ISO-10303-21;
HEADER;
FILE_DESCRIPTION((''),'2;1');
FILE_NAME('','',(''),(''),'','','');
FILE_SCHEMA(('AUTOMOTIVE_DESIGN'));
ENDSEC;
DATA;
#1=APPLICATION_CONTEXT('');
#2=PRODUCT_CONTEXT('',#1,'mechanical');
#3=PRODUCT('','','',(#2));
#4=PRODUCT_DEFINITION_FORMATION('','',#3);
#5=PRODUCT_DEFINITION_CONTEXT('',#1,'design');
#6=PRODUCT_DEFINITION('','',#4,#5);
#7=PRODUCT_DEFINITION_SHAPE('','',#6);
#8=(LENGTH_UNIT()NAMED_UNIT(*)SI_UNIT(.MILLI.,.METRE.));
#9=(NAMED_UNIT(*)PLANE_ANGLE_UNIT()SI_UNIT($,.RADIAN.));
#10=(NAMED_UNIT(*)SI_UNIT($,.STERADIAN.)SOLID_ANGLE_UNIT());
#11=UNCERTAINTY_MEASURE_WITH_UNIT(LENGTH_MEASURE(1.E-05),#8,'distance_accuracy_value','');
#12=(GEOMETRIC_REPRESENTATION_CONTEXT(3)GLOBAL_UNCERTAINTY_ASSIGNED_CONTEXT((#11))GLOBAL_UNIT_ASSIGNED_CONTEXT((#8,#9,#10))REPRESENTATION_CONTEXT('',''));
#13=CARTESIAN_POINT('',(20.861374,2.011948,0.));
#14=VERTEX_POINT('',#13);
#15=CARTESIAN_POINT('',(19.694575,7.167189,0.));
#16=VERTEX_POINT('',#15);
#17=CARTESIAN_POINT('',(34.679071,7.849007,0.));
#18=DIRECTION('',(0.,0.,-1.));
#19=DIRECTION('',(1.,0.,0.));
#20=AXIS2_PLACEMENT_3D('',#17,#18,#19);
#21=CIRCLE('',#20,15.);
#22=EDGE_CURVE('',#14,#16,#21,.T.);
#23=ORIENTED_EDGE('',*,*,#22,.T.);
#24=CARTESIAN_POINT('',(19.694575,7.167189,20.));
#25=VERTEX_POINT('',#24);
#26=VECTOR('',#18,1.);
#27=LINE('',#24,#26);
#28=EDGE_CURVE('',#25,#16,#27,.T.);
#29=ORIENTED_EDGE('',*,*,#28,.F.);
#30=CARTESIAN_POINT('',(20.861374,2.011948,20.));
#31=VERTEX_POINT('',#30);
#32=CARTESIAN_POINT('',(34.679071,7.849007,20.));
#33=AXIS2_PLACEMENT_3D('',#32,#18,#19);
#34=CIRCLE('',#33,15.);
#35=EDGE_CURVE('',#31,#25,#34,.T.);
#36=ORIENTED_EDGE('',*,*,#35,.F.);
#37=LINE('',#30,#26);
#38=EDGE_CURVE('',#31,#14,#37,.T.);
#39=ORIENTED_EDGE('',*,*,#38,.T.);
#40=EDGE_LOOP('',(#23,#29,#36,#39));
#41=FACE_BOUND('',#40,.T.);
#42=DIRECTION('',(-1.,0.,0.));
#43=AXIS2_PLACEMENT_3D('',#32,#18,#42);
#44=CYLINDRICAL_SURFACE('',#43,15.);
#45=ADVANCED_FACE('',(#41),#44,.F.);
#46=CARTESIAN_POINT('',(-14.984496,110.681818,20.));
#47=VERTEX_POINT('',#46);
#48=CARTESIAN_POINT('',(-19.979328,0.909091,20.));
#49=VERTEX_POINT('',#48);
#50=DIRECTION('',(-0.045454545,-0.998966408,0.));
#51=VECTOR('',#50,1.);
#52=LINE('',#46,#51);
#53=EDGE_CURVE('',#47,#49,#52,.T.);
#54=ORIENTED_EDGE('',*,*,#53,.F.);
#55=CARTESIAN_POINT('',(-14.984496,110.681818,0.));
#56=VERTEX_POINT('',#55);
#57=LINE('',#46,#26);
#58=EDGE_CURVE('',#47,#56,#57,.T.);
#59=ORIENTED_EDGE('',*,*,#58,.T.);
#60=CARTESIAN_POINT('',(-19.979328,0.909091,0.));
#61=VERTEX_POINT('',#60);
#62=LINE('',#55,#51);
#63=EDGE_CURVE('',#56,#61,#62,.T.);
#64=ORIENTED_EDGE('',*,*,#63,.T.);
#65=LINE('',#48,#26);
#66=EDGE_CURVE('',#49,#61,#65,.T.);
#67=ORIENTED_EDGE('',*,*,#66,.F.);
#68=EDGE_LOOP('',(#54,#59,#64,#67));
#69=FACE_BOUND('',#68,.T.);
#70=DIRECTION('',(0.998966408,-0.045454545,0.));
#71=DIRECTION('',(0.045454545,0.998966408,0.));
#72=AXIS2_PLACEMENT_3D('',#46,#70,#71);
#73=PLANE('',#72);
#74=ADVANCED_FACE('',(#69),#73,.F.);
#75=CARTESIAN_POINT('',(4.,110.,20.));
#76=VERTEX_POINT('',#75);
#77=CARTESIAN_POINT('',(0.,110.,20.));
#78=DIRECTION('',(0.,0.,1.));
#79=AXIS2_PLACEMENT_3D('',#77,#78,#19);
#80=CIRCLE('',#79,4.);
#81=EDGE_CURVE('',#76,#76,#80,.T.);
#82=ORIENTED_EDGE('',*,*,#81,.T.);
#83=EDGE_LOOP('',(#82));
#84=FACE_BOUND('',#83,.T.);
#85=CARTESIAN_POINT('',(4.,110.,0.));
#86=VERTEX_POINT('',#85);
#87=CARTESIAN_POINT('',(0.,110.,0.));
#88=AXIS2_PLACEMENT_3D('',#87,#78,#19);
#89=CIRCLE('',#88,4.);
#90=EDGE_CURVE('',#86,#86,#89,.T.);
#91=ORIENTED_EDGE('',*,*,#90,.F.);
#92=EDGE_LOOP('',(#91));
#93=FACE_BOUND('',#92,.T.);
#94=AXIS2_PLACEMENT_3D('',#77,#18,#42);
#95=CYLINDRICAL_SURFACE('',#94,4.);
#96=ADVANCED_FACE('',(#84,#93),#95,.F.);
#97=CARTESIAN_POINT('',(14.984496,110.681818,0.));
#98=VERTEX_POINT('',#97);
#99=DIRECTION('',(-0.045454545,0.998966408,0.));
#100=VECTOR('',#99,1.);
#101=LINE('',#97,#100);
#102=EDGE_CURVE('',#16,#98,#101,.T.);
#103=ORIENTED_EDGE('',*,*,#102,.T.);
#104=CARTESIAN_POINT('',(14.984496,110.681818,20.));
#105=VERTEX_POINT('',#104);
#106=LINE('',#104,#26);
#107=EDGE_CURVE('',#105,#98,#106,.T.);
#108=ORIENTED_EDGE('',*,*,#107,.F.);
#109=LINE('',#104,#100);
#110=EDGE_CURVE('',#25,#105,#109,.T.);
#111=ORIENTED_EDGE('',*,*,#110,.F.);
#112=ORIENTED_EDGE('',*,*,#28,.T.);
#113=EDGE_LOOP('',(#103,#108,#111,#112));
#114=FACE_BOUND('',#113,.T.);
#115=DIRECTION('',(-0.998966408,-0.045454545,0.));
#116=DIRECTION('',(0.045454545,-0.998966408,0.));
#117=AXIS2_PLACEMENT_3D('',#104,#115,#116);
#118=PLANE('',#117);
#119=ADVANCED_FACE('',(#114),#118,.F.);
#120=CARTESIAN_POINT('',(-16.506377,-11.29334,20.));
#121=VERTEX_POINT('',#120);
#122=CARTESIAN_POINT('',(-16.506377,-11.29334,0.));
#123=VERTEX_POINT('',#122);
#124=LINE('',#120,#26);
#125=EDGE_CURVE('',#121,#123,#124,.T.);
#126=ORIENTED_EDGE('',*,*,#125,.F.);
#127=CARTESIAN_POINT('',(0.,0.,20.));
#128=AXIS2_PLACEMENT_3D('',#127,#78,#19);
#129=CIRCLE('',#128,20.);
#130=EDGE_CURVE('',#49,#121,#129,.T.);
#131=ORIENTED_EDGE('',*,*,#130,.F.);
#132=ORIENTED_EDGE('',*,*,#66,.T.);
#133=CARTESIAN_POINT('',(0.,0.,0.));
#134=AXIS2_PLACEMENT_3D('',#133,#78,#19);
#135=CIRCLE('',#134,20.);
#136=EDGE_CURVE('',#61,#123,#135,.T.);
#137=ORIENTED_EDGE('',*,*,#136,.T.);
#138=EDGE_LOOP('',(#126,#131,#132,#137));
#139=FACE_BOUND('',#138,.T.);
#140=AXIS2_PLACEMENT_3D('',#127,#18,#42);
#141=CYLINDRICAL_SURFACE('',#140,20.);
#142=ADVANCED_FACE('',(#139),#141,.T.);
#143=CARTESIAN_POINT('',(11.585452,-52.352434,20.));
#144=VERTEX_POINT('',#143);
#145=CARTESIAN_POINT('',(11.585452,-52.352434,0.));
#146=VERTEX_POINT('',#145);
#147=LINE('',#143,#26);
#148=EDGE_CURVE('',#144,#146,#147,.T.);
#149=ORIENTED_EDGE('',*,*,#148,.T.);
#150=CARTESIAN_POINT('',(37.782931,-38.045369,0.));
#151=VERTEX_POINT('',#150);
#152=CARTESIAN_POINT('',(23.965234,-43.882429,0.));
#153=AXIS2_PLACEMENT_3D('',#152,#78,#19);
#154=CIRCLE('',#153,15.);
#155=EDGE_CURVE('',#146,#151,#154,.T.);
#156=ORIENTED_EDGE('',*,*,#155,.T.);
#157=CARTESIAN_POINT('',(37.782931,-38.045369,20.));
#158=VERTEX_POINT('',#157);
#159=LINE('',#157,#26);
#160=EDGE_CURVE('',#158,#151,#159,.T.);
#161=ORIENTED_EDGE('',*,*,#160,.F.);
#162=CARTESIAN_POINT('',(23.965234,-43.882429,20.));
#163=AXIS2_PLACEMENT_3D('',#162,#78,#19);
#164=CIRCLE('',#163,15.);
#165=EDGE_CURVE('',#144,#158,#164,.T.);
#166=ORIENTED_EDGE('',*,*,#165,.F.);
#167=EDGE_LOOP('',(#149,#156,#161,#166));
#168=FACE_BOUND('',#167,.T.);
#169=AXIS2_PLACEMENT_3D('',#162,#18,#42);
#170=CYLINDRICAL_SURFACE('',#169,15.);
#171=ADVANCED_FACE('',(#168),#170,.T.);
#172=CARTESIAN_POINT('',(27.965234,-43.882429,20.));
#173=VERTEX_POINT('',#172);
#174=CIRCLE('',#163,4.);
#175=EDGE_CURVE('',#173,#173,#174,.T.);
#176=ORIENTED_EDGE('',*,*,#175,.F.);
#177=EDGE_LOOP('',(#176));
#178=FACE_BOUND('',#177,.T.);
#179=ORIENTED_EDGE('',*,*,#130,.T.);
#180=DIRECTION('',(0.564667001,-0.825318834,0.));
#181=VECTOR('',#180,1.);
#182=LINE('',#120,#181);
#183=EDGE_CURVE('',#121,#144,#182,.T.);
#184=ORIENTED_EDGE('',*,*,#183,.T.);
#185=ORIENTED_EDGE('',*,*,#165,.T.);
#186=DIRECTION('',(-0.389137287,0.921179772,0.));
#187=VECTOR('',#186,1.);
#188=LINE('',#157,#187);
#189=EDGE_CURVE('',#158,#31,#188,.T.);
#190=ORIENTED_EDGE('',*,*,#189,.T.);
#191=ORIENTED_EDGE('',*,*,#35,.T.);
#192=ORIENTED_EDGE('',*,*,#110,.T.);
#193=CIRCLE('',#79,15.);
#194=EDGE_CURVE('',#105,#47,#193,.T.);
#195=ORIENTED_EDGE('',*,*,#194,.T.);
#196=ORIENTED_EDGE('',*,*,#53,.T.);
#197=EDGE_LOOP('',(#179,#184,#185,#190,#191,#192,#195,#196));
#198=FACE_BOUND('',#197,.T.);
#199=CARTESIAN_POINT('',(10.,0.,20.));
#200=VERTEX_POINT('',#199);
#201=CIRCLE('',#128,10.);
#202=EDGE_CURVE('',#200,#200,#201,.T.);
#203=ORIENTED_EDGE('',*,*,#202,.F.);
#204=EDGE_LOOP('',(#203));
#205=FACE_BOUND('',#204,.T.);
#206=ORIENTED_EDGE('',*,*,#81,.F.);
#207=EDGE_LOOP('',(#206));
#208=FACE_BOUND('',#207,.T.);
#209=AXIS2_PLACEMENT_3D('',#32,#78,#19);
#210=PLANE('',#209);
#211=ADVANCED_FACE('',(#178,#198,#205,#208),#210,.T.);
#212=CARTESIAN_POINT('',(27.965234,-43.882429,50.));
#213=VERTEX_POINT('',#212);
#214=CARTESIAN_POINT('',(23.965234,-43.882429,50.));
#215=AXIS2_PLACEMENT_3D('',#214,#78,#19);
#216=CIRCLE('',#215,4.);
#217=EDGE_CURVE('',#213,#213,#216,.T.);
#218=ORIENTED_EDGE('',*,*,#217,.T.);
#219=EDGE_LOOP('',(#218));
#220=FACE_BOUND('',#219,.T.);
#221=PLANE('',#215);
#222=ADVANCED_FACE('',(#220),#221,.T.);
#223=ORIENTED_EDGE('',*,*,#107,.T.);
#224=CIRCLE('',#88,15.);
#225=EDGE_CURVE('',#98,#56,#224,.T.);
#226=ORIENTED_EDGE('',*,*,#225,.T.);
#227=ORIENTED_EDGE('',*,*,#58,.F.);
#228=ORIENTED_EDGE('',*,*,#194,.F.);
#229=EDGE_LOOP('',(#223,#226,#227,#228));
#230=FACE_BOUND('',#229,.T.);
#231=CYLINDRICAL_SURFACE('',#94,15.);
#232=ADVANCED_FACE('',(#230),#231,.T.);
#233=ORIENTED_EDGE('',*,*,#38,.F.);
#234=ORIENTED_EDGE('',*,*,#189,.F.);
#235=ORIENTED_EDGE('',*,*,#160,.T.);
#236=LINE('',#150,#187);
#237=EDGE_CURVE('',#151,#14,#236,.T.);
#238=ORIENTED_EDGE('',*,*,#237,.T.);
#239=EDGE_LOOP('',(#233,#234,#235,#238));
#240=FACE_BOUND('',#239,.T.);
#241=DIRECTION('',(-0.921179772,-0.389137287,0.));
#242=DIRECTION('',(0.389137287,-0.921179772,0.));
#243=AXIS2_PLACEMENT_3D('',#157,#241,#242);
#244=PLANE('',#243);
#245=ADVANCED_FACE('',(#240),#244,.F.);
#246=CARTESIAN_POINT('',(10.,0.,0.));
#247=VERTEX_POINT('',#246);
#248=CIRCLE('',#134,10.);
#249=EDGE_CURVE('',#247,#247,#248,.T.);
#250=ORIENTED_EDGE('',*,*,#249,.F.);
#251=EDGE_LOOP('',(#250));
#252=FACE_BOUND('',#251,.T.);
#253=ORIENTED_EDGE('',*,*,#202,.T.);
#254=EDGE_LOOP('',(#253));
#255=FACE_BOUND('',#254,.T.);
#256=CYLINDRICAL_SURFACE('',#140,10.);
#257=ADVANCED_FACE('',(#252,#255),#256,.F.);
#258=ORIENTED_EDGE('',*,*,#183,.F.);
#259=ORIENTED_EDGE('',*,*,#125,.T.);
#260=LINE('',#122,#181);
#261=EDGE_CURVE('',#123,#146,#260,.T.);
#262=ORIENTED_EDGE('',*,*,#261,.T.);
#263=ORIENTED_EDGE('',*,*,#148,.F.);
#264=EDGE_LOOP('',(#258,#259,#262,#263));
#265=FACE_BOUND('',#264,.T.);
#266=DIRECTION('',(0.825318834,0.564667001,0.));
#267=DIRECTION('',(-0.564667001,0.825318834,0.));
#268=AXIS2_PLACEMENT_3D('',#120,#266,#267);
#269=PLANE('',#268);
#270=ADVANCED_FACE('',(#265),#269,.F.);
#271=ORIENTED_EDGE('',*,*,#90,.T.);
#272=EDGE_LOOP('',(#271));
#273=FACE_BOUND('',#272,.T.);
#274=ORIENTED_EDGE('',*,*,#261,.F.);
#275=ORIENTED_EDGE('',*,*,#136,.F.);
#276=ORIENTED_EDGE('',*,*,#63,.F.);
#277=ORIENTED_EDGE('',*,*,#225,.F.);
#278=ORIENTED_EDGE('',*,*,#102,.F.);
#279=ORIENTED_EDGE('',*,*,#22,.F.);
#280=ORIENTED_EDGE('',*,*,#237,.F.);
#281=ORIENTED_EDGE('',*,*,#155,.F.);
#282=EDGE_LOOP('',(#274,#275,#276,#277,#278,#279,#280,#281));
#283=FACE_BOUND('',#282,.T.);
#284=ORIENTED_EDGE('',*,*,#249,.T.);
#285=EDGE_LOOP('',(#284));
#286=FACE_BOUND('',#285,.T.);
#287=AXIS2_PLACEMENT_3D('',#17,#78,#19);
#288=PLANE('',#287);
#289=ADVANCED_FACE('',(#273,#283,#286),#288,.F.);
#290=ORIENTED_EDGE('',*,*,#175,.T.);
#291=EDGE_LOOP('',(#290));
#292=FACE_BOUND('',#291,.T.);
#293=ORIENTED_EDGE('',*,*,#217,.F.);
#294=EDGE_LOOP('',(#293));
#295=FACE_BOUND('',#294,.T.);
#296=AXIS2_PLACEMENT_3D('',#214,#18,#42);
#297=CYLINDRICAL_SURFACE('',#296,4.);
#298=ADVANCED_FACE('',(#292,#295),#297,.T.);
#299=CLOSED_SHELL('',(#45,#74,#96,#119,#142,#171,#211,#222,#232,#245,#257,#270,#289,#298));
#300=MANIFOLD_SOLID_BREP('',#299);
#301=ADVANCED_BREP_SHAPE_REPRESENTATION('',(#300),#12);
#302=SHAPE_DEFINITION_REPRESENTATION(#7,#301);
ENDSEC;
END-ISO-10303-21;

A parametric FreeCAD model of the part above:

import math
import FreeCAD as App
import Part
import Sketcher

V = App.Vector
Q = App.Units.Quantity

doc = App.newDocument("Part")
body = doc.addObject("PartDesign::Body", "Body")

sketch1 = body.newObject("Sketcher::SketchObject", "Sketch")
sketch1.AttachmentSupport = (doc.getObject("XY_Plane"), [""])
sketch1.MapMode = "FlatFace"
sketch1.addGeometry(Part.LineSegment(V(-14.984496, 110.681818, 0), V(-19.979328, 0.909091, 0)), False)
sketch1.addGeometry(Part.ArcOfCircle(Part.Circle(V(0, 0, 0), V(0, 0, 1), 20), math.radians(177.394749), math.radians(214.37917)), False)
sketch1.addGeometry(Part.LineSegment(V(-16.506377, -11.29334, 0), V(11.585452, -52.352434, 0)), False)
sketch1.addGeometry(Part.ArcOfCircle(Part.Circle(V(23.965234, -43.882429, 0), V(0, 0, 1), 15), math.radians(-145.62083), math.radians(22.90083)), False)
sketch1.addGeometry(Part.LineSegment(V(37.782931, -38.045369, 0), V(20.861374, 2.011948, 0)), False)
sketch1.addGeometry(Part.ArcOfCircle(Part.Circle(V(34.679071, 7.849007, 0), V(0, 0, 1), 15), math.radians(-177.394749), math.radians(-157.09917)), False)
sketch1.addGeometry(Part.LineSegment(V(19.694575, 7.167189, 0), V(14.984496, 110.681818, 0)), False)
sketch1.addGeometry(Part.ArcOfCircle(Part.Circle(V(0, 110, 0), V(0, 0, 1), 15), math.radians(2.605251), math.radians(177.394749)), False)
sketch1.addGeometry(Part.Circle(V(0, 0, 0), V(0, 0, 1), 10), False)
sketch1.addGeometry(Part.Circle(V(0, 110, 0), V(0, 0, 1), 4), False)
sketch1.addConstraint(Sketcher.Constraint("Tangent", 0, 2, 1, 1))
sketch1.addConstraint(Sketcher.Constraint("Tangent", 1, 2, 2, 1))
sketch1.addConstraint(Sketcher.Constraint("Tangent", 2, 2, 3, 1))
sketch1.addConstraint(Sketcher.Constraint("Tangent", 3, 2, 4, 1))
sketch1.addConstraint(Sketcher.Constraint("Tangent", 4, 2, 5, 2))
sketch1.addConstraint(Sketcher.Constraint("Tangent", 5, 1, 6, 1))
sketch1.addConstraint(Sketcher.Constraint("Tangent", 6, 2, 7, 1))
sketch1.addConstraint(Sketcher.Constraint("Tangent", 7, 2, 0, 1))
sketch1.addConstraint(Sketcher.Constraint("Coincident", 1, 3, -1, 1))
sketch1.addConstraint(Sketcher.Constraint("Coincident", 8, 3, -1, 1))
sketch1.addConstraint(Sketcher.Constraint("Coincident", 9, 3, 7, 3))
sketch1.addConstraint(Sketcher.Constraint("Equal", 3, 5))
sketch1.addConstraint(Sketcher.Constraint("Equal", 5, 7))
sketch1.addConstraint(Sketcher.Constraint("Symmetric", 6, 2, 7, 2, -2))
sketch1.addConstraint(Sketcher.Constraint("Diameter", 8, Q("20 mm")))
sketch1.addConstraint(Sketcher.Constraint("Diameter", 9, Q("8 mm")))
sketch1.addConstraint(Sketcher.Constraint("Radius", 1, Q("20 mm")))
sketch1.addConstraint(Sketcher.Constraint("Radius", 3, Q("15 mm")))
sketch1.addConstraint(Sketcher.Constraint("DistanceY", -1, 1, 7, 3, Q("110 mm")))
sketch1.addConstraint(Sketcher.Constraint("Distance", 4, Q("43.484799 mm")))
sketch1.addConstraint(Sketcher.Constraint("DistanceX", 0, 2, 5, 3, Q("54.658399 mm")))
sketch1.addConstraint(Sketcher.Constraint("DistanceX", 5, 1, 4, 2, Q("1.1668 mm")))
pad1 = body.newObject("PartDesign::Pad", "Pad")
pad1.Profile = sketch1
pad1.Length = 20

sketch2 = body.newObject("Sketcher::SketchObject", "Sketch001")
sketch2.AttachmentSupport = (doc.getObject("XY_Plane"), [""])
sketch2.MapMode = "FlatFace"
sketch2.AttachmentOffset = App.Placement(V(0, 0, 20), App.Rotation())
sketch2.addGeometry(Part.Circle(V(23.965234, -43.882429, 0), V(0, 0, 1), 4), False)
sketch2.addConstraint(Sketcher.Constraint("Diameter", 0, Q("8 mm")))
sketch2.addConstraint(Sketcher.Constraint("DistanceY", 0, 3, -1, 1, Q("43.882429 mm")))
sketch2.addConstraint(Sketcher.Constraint("DistanceX", -1, 1, 0, 3, Q("23.965234 mm")))
pad2 = body.newObject("PartDesign::Pad", "Pad001")
pad2.Profile = sketch2
pad2.Length = 30

doc.recompute()
